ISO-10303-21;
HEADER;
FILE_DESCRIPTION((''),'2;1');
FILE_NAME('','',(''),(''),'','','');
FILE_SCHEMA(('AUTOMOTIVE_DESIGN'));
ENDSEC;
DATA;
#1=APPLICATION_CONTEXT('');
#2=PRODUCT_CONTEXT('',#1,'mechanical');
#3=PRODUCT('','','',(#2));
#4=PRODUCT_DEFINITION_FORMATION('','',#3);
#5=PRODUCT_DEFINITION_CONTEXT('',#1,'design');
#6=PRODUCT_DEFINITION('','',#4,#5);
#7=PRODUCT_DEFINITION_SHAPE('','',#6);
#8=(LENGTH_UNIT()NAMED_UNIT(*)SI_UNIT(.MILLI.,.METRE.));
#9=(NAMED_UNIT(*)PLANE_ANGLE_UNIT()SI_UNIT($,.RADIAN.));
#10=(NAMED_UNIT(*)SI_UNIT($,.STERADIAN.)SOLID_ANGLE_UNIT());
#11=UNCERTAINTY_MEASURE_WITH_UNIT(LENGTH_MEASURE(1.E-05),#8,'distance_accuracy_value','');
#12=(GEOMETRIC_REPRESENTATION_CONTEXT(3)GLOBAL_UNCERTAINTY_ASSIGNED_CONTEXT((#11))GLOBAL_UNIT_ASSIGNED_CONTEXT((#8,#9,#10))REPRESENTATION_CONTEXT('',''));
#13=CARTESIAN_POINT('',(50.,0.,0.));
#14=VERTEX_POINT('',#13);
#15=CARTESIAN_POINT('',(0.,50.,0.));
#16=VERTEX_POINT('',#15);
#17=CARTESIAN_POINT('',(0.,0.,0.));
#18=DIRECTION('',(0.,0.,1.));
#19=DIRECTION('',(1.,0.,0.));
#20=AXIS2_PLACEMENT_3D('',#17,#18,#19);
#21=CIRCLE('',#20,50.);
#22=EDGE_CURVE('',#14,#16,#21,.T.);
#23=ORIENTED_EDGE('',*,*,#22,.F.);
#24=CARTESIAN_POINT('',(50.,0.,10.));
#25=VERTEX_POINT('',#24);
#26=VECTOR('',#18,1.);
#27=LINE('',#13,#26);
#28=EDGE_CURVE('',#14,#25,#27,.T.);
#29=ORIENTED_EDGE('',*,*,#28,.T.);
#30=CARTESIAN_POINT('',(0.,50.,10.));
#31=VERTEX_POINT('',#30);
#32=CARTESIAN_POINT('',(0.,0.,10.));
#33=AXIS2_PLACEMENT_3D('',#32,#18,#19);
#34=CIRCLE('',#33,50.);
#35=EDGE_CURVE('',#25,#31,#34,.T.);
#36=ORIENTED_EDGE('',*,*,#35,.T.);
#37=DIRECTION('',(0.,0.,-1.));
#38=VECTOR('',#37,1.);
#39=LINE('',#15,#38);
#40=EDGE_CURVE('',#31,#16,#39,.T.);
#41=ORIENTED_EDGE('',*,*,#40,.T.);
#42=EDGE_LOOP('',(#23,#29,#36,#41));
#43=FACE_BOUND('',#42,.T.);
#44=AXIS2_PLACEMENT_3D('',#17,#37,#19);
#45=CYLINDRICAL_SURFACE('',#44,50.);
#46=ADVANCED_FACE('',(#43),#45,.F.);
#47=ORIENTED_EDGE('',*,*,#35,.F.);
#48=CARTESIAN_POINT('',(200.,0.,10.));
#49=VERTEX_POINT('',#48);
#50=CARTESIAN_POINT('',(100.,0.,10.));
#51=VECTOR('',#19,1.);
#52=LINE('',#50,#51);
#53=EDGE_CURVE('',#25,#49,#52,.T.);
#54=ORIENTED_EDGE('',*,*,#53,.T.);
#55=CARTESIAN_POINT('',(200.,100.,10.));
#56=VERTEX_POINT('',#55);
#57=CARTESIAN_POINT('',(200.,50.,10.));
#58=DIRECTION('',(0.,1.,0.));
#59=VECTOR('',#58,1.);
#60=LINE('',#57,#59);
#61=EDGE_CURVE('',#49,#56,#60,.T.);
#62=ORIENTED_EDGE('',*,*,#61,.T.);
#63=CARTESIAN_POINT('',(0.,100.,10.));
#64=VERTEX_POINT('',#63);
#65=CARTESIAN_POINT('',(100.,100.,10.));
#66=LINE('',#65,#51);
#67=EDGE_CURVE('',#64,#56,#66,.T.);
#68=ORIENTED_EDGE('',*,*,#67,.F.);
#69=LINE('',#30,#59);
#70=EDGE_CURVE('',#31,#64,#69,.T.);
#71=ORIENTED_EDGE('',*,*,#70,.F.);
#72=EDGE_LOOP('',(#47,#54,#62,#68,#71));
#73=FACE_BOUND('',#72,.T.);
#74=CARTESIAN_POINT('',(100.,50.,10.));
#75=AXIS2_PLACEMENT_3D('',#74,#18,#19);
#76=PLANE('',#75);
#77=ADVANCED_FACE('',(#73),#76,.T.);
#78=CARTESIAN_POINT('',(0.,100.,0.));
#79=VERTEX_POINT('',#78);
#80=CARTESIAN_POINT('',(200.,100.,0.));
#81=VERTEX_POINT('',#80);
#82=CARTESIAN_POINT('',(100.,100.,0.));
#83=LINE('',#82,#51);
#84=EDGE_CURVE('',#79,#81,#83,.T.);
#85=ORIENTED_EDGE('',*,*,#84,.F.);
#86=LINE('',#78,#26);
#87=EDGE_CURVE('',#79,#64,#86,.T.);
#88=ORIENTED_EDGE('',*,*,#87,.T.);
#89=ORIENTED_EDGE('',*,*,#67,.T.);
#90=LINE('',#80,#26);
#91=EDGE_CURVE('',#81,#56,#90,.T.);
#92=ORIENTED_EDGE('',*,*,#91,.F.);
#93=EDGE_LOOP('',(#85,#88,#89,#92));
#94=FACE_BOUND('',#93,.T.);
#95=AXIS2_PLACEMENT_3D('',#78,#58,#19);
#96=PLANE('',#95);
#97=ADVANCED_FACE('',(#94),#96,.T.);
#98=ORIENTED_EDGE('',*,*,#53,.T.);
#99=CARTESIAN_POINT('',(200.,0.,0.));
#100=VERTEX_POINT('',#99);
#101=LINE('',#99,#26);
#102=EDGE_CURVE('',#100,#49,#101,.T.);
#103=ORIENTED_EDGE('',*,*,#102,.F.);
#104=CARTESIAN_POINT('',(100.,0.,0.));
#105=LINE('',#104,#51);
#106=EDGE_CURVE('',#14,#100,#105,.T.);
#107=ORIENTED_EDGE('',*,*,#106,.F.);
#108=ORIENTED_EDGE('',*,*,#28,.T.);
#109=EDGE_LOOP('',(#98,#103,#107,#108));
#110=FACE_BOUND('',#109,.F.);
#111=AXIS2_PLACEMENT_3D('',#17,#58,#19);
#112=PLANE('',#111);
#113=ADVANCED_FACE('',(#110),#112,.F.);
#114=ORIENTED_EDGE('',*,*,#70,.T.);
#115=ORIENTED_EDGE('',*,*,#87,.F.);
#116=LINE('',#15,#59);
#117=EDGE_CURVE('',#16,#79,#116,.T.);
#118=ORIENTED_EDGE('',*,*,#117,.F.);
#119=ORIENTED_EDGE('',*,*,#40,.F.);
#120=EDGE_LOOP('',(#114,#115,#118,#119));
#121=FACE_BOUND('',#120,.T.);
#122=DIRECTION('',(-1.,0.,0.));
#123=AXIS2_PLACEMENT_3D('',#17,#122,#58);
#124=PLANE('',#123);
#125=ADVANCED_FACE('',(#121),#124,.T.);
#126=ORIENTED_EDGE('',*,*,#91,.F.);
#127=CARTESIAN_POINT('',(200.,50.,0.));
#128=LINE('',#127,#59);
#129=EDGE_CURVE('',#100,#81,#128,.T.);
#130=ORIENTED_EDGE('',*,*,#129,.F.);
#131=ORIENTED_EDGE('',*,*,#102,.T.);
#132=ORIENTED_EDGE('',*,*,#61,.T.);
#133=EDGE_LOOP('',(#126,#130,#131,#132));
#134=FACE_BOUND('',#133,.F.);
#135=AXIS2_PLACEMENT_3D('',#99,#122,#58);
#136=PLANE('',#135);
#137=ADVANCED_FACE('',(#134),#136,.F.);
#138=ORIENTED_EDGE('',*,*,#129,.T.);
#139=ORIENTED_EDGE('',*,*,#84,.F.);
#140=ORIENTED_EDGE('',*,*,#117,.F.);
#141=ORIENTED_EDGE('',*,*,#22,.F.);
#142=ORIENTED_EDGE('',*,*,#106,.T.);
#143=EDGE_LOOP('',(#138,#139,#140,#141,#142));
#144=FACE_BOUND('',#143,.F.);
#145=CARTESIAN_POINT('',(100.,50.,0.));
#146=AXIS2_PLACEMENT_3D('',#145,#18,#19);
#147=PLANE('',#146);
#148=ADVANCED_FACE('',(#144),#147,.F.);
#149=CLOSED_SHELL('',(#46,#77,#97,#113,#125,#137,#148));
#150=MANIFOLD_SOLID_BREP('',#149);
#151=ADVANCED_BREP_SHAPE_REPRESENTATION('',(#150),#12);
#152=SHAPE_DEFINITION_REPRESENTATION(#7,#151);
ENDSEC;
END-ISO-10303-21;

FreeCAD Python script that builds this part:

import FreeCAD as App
import Part
import Sketcher
from FreeCAD import Vector

doc = App.newDocument("Part")
body = doc.addObject("PartDesign::Body", "Body")

# Sketch on XY plane
sketch1 = body.newObject("Sketcher::SketchObject", "Sketch")
sketch1.AttachmentSupport = (doc.getObject("XY_Plane"), [""])
sketch1.MapMode = "FlatFace"
sketch1.addGeometry(Part.Circle(Vector(0, 0, 0), Vector(0, 0, 1), 50), False)
sketch1.addConstraint([
    Sketcher.Constraint("Coincident", 0, 3, -1, 1),
    Sketcher.Constraint("Diameter", 0, 100.0),
])
pad1 = body.newObject("PartDesign::Pad", "Pad")
pad1.Profile = sketch1
pad1.Length = 10
body2 = doc.addObject("PartDesign::Body", "Body001")

# Sketch on XY plane
sketch2 = body2.newObject("Sketcher::SketchObject", "Sketch001")
sketch2.AttachmentSupport = (doc.getObject("XY_Plane001"), [""])
sketch2.MapMode = "FlatFace"
sketch2.addGeometry([
    Part.LineSegment(Vector(0, 100, 0), Vector(0, 0, 0)),
    Part.LineSegment(Vector(0, 0, 0), Vector(200, 0, 0)),
    Part.LineSegment(Vector(200, 0, 0), Vector(200, 100, 0)),
    Part.LineSegment(Vector(200, 100, 0), Vector(0, 100, 0)),
], False)
sketch2.addConstraint([
    Sketcher.Constraint("Coincident", 0, 2, 1, 1),
    Sketcher.Constraint("Coincident", 1, 2, 2, 1),
    Sketcher.Constraint("Coincident", 2, 2, 3, 1),
    Sketcher.Constraint("Coincident", 3, 2, 0, 1),
    Sketcher.Constraint("Vertical", 0),
    Sketcher.Constraint("Horizontal", 1),
    Sketcher.Constraint("Vertical", 2),
    Sketcher.Constraint("Horizontal", 3),
    Sketcher.Constraint("Coincident", 0, 2, -1, 1),
    Sketcher.Constraint("DistanceX", 1, 1, 1, 2, 200.0),
    Sketcher.Constraint("DistanceY", 0, 2, 0, 1, 100.0),
])
pad2 = body2.newObject("PartDesign::Pad", "Pad001")
pad2.Profile = sketch2
pad2.Length = 10
doc.recompute()

boolean = body2.newObject("PartDesign::Boolean", "Boolean")
boolean.Type = "Cut"
boolean.addObjects([body])

doc.recompute()
